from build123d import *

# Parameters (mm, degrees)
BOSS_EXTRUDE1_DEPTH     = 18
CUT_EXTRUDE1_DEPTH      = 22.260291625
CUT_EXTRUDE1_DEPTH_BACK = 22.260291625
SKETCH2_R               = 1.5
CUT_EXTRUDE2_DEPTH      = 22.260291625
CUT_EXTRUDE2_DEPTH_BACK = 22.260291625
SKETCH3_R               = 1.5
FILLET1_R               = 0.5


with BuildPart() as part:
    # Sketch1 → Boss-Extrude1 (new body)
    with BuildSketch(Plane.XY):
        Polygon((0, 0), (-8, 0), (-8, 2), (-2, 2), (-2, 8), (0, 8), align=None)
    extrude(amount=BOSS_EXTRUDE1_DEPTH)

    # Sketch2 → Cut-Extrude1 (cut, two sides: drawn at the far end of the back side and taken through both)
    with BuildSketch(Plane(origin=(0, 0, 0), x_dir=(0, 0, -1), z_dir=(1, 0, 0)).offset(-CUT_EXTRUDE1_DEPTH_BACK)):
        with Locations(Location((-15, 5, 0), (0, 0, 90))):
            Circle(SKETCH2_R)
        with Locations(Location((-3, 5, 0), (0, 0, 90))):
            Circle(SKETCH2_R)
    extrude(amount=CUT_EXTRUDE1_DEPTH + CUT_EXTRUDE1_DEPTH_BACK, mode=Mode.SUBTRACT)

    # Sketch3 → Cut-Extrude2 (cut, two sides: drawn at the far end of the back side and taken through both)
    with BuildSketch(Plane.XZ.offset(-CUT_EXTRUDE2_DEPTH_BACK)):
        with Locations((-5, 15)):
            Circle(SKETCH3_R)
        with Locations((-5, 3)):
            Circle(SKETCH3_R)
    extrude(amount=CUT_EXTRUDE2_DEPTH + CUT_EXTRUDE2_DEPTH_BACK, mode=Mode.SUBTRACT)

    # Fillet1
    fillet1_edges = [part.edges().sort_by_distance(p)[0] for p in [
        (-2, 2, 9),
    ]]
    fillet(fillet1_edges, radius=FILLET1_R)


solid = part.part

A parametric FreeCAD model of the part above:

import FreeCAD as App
import Part
import Sketcher
from FreeCAD import Vector
Q = App.Units.Quantity


def edges_at(feature, points):
    """Names of the edges that pass closest to the given points."""
    edges = feature.Shape.Edges
    near = lambda p: min(range(len(edges)), key=lambda i: edges[i].distToShape(Part.Vertex(*p))[0])
    return sorted({f"Edge{near(p) + 1}" for p in points})


def add_polygon(sketch, points):
    """Adds a closed chain of lines whose ends are joined by coincident constraints."""
    first, n = sketch.GeometryCount, len(points)
    for a, b in zip(points, points[1:] + points[:1]):
        sketch.addGeometry(Part.LineSegment(App.Vector(*a, 0), App.Vector(*b, 0)), False)
    for i in range(n):
        sketch.addConstraint(Sketcher.Constraint("Coincident", first + i, 2, first + (i + 1) % n, 1))

doc = App.newDocument("Part")
body = doc.addObject("PartDesign::Body", "Body")

sketch1 = body.newObject("Sketcher::SketchObject", "Sketch")
sketch1.AttachmentSupport = (doc.getObject("XY_Plane"), [""])
sketch1.MapMode = "FlatFace"
add_polygon(sketch1, [(-8, 0), (0, 0), (0, 8), (-2, 8), (-2, 2), (-8, 2)])
sketch1.addConstraint(Sketcher.Constraint("Horizontal", 0))
sketch1.addConstraint(Sketcher.Constraint("Vertical", 1))
sketch1.addConstraint(Sketcher.Constraint("Horizontal", 2))
sketch1.addConstraint(Sketcher.Constraint("Vertical", 3))
sketch1.addConstraint(Sketcher.Constraint("Horizontal", 4))
sketch1.addConstraint(Sketcher.Constraint("Vertical", 5))
sketch1.addConstraint(Sketcher.Constraint("Coincident", 0, 2, -1, 1))
sketch1.addConstraint(Sketcher.Constraint("Equal", 0, 1))
sketch1.addConstraint(Sketcher.Constraint("Equal", 4, 3))
sketch1.addConstraint(Sketcher.Constraint("DistanceX", 0, 1, 0, 2, Q("8 mm")))
sketch1.addConstraint(Sketcher.Constraint("DistanceX", 2, 2, 2, 1, Q("2 mm")))
pad1 = body.newObject("PartDesign::Pad", "Pad")
pad1.Profile = sketch1
pad1.Length = 18

sketch2 = body.newObject("Sketcher::SketchObject", "Sketch001")
sketch2.AttachmentSupport = (doc.getObject("YZ_Plane"), [""])
sketch2.MapMode = "FlatFace"
sketch2.addGeometry(Part.Circle(Vector(5, 15, 0), Vector(0, 0, 1), 1.5), False)
sketch2.addGeometry(Part.Circle(Vector(5, 3, 0), Vector(0, 0, 1), 1.5), False)
sketch2.addConstraint(Sketcher.Constraint("Equal", 0, 1))
sketch2.addConstraint(Sketcher.Constraint("Vertical", 0, 3, 1, 3))
sketch2.addConstraint(Sketcher.Constraint("Diameter", 0, Q("3 mm")))
sketch2.addConstraint(Sketcher.Constraint("DistanceX", -1, 1, 0, 3, Q("5 mm")))
sketch2.addConstraint(Sketcher.Constraint("DistanceY", -1, 1, 0, 3, Q("15 mm")))
sketch2.addConstraint(Sketcher.Constraint("DistanceY", -1, 1, 1, 3, Q("3 mm")))
pocket1 = body.newObject("PartDesign::Pocket", "Pocket")
pocket1.Profile = sketch2
pocket1.Type = "ThroughAll"
pocket1.Midplane = True

sketch3 = body.newObject("Sketcher::SketchObject", "Sketch002")
sketch3.AttachmentSupport = (doc.getObject("XZ_Plane"), [""])
sketch3.MapMode = "FlatFace"
sketch3.addGeometry(Part.Circle(Vector(-5, 15, 0), Vector(0, 0, 1), 1.5), False)
sketch3.addGeometry(Part.Circle(Vector(-5, 3, 0), Vector(0, 0, 1), 1.5), False)
sketch3.addConstraint(Sketcher.Constraint("Equal", 0, 1))
sketch3.addConstraint(Sketcher.Constraint("Vertical", 0, 3, 1, 3))
sketch3.addConstraint(Sketcher.Constraint("Diameter", 0, Q("3 mm")))
sketch3.addConstraint(Sketcher.Constraint("DistanceX", 0, 3, -1, 1, Q("5 mm")))
sketch3.addConstraint(Sketcher.Constraint("DistanceY", -1, 1, 0, 3, Q("15 mm")))
sketch3.addConstraint(Sketcher.Constraint("DistanceY", -1, 1, 1, 3, Q("3 mm")))
pocket2 = body.newObject("PartDesign::Pocket", "Pocket001")
pocket2.Profile = sketch3
pocket2.Type = "ThroughAll"
pocket2.Midplane = True
doc.recompute()

fillet = body.newObject("PartDesign::Fillet", "Fillet")
fillet.Base = (pocket2, edges_at(pocket2, [(-2, 2, 9)]))
fillet.Radius = 0.5

doc.recompute()
